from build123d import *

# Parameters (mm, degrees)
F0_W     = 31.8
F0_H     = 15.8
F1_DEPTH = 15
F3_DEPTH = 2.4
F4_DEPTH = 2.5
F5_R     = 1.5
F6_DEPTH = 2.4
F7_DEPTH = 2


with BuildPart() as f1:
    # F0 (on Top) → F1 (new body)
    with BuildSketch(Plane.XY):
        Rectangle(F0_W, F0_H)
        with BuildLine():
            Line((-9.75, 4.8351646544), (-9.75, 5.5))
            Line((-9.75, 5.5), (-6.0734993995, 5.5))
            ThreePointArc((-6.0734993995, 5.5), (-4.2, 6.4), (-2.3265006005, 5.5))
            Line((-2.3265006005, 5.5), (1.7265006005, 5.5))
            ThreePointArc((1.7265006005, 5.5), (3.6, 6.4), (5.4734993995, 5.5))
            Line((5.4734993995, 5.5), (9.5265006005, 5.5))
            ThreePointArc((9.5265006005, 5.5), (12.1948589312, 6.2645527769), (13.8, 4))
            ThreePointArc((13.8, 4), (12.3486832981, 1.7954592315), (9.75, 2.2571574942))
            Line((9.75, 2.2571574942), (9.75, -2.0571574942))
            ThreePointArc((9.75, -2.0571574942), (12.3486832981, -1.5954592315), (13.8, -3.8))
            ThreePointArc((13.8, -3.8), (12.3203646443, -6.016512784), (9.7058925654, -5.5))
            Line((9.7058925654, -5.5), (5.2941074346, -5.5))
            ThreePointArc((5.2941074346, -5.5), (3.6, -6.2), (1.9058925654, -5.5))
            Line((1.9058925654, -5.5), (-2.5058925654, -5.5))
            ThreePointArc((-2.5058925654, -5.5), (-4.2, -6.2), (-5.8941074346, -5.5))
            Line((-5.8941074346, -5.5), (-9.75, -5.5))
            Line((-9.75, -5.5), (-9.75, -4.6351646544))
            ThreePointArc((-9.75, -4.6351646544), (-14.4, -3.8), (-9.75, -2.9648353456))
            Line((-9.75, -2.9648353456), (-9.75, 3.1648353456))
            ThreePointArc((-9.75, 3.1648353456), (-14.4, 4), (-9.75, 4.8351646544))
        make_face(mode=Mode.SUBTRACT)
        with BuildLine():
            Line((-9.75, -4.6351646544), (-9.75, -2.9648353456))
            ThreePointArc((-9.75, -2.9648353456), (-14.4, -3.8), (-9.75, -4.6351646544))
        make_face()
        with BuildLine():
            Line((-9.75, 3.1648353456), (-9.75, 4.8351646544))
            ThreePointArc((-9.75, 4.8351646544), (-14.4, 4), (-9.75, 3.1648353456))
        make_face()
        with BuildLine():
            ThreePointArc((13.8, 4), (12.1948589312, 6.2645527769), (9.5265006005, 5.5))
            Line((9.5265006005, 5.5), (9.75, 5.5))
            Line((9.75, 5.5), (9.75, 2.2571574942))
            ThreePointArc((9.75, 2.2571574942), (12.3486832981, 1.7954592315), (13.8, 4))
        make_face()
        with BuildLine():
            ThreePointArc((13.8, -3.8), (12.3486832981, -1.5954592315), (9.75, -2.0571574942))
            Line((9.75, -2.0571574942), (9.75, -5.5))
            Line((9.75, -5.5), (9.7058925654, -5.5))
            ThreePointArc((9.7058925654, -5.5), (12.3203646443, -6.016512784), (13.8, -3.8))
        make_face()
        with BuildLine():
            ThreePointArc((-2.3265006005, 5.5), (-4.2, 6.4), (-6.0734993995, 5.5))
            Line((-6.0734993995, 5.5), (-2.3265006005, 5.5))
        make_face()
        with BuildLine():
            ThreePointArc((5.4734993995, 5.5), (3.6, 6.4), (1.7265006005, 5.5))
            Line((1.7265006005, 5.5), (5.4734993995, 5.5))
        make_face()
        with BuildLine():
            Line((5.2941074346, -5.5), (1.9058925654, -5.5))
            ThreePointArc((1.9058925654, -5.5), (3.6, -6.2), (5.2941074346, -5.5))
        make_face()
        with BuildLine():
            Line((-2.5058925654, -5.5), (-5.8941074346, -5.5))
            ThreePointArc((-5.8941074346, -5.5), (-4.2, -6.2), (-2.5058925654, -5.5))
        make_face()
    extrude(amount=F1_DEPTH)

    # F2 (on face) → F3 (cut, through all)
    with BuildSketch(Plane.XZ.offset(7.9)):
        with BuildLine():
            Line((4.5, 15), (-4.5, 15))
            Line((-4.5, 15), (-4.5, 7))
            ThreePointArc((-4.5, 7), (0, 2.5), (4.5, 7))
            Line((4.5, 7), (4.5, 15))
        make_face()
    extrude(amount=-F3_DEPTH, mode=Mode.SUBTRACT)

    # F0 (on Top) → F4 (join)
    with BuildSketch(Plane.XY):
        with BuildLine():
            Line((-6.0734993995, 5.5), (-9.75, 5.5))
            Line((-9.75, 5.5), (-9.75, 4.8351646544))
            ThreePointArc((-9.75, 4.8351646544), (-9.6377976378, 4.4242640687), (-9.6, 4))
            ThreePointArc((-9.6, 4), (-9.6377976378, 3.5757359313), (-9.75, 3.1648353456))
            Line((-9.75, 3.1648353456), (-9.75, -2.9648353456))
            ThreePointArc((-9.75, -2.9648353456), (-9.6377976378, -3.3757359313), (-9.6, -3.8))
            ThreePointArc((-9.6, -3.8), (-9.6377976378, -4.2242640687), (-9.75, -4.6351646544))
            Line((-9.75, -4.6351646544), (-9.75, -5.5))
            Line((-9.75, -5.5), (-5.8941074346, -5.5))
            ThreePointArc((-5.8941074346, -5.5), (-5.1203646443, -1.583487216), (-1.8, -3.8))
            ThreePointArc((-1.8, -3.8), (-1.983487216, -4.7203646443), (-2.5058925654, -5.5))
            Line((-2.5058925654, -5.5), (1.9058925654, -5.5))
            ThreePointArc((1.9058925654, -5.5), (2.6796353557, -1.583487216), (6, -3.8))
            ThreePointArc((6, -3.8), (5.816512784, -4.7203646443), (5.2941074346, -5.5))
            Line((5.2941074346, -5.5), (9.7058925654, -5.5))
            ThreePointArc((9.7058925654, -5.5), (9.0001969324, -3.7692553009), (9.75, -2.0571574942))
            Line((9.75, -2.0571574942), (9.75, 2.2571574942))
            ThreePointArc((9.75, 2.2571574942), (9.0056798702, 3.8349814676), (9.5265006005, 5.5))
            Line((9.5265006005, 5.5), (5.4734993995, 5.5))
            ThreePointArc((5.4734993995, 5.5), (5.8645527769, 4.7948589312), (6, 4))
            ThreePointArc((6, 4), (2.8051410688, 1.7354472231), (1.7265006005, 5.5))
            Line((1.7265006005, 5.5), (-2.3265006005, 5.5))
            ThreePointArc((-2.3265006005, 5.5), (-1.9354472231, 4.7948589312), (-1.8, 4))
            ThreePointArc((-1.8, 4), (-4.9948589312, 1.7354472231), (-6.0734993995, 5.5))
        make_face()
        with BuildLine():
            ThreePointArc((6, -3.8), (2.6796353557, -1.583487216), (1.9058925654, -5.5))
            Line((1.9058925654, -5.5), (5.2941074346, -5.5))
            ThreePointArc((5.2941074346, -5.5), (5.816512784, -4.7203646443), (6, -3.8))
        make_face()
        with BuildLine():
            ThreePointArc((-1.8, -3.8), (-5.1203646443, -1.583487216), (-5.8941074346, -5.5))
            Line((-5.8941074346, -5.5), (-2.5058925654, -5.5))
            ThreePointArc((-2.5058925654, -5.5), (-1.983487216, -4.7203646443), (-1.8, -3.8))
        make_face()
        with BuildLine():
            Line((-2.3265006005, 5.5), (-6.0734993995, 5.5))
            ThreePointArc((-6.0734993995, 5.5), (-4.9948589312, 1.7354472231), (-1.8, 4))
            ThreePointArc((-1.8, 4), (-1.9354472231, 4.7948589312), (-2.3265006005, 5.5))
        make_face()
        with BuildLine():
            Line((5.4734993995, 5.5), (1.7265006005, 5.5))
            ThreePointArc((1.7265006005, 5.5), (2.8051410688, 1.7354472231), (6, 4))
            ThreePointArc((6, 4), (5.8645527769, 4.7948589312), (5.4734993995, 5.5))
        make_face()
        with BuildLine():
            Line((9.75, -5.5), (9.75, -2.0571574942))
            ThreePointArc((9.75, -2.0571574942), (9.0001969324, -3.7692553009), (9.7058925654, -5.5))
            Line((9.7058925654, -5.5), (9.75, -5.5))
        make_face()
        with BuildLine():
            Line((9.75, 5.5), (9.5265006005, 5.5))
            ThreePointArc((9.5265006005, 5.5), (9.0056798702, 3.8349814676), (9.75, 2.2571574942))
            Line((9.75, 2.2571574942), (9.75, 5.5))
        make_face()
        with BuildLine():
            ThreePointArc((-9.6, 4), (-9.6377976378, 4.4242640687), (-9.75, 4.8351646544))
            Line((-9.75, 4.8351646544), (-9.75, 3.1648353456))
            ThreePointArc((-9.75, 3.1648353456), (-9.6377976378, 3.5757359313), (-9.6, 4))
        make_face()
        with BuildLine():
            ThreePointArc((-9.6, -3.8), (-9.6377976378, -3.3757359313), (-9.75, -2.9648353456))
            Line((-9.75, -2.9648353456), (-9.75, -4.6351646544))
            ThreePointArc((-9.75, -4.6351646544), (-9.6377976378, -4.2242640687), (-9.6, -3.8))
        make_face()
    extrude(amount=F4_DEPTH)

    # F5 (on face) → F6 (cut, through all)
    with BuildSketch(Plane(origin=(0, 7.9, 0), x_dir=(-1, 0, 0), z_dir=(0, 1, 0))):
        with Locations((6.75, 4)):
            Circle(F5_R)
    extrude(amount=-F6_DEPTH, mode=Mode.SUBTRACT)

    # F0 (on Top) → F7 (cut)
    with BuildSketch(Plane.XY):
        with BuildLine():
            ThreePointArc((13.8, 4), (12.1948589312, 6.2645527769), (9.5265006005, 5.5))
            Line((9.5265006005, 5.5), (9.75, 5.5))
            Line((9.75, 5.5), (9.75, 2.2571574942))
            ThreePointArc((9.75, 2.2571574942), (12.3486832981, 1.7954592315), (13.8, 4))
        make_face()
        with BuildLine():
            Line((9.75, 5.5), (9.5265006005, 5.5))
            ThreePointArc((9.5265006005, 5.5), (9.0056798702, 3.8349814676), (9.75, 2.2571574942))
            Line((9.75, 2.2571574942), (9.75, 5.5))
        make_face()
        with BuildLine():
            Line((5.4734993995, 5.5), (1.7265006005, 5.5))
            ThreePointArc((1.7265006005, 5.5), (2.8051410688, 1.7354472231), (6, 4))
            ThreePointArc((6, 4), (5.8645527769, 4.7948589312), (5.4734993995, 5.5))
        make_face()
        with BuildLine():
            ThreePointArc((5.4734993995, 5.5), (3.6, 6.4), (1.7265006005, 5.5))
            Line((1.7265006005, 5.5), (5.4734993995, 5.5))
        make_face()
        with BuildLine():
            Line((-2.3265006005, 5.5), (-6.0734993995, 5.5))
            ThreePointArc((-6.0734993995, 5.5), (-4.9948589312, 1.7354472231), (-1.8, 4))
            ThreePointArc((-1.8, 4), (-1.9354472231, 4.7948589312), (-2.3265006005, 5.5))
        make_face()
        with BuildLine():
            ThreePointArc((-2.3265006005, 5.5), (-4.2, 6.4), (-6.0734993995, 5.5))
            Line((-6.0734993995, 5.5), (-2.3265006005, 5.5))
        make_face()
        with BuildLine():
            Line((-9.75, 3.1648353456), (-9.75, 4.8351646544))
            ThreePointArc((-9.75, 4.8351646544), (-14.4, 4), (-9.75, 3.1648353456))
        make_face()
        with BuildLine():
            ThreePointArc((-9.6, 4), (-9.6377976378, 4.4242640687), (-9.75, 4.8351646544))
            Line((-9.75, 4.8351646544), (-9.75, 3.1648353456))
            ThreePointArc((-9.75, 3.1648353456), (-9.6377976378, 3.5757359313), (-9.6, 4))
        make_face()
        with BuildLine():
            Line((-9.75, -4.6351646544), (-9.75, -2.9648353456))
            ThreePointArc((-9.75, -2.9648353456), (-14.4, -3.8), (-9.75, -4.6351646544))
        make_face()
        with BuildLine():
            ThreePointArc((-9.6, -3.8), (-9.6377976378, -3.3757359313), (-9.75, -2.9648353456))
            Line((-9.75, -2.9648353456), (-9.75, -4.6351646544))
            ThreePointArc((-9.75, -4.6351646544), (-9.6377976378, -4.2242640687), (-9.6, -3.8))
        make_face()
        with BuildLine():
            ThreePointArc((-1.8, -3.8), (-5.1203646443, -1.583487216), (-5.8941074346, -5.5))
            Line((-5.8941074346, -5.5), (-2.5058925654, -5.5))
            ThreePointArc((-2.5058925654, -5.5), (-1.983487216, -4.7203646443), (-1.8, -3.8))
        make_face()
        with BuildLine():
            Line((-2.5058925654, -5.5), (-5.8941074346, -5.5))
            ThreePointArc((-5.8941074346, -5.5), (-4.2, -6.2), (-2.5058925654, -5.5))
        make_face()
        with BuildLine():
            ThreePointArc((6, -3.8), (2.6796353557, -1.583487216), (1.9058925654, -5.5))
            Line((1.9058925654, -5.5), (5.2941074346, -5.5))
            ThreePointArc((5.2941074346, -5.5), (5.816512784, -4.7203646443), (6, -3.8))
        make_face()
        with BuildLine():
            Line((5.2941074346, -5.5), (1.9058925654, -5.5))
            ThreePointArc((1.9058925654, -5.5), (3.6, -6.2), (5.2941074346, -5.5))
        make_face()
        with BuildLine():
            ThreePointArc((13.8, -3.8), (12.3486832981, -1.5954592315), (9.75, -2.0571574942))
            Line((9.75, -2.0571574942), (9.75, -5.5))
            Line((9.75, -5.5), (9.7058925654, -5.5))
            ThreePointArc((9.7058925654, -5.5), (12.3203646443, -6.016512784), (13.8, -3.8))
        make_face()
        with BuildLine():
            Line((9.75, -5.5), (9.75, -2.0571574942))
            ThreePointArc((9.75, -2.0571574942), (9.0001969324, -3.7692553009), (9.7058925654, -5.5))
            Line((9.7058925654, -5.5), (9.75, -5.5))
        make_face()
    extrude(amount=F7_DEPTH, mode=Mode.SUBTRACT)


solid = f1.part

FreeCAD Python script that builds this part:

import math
import FreeCAD as App
import Part
import Sketcher
from FreeCAD import Vector


def add_polygon(sketch, points):
    """Adds a closed chain of lines whose ends are joined by coincident constraints."""
    first, n = sketch.GeometryCount, len(points)
    for a, b in zip(points, points[1:] + points[:1]):
        sketch.addGeometry(Part.LineSegment(App.Vector(*a, 0), App.Vector(*b, 0)), False)
    for i in range(n):
        sketch.addConstraint(Sketcher.Constraint("Coincident", first + i, 2, first + (i + 1) % n, 1))

doc = App.newDocument("Part")
body = doc.addObject("PartDesign::Body", "Body")

sketch1 = body.newObject("Sketcher::SketchObject", "Sketch")
sketch1.AttachmentSupport = (doc.getObject("XY_Plane"), [""])
sketch1.MapMode = "FlatFace"
add_polygon(sketch1, [(-15.9, 7.9), (-15.9, -7.9), (15.9, -7.9), (15.9, 7.9)])
add_polygon(sketch1, [(-9.75, 5.5), (9.75, 5.5), (9.75, -5.5), (-9.75, -5.5)])
sketch1.addConstraint([
    Sketcher.Constraint("Vertical", 0),
    Sketcher.Constraint("Horizontal", 1),
    Sketcher.Constraint("Vertical", 2),
    Sketcher.Constraint("Horizontal", 3),
    Sketcher.Constraint("Horizontal", 4),
    Sketcher.Constraint("Vertical", 5),
    Sketcher.Constraint("Horizontal", 6),
    Sketcher.Constraint("Vertical", 7),
    Sketcher.Constraint("Symmetric", 0, 2, 2, 2, -1, 1),
    Sketcher.Constraint("Symmetric", 4, 2, 6, 2, -1, 1),
    Sketcher.Constraint("DistanceY", 5, 2, 5, 1, 11.0),
    Sketcher.Constraint("DistanceX", 1, 1, 1, 2, 31.8),
    Sketcher.Constraint("DistanceX", 4, 1, 4, 2, 19.5),
    Sketcher.Constraint("DistanceY", 0, 2, 0, 1, 15.8),
])
pad1 = body.newObject("PartDesign::Pad", "Pad")
pad1.Profile = sketch1
pad1.Length = 15

sketch2 = body.newObject("Sketcher::SketchObject", "Sketch001")
sketch2.AttachmentSupport = (doc.getObject("XZ_Plane"), [""])
sketch2.MapMode = "FlatFace"
sketch2.AttachmentOffset = App.Placement(Vector(0, 0, 7.9), App.Rotation())
sketch2.addGeometry([
    Part.LineSegment(Vector(4.5, 15, 0), Vector(-4.5, 15, 0)),
    Part.LineSegment(Vector(-4.5, 15, 0), Vector(-4.5, 7, 0)),
    Part.ArcOfCircle(Part.Circle(Vector(0, 7, 0), Vector(0, 0, 1), 4.5), math.radians(180), math.radians(360)),
    Part.LineSegment(Vector(4.5, 7, 0), Vector(4.5, 15, 0)),
], False)
sketch2.addConstraint([
    Sketcher.Constraint("Coincident", 0, 2, 1, 1),
    Sketcher.Constraint("Tangent", 1, 2, 2, 1),
    Sketcher.Constraint("Tangent", 2, 2, 3, 1),
    Sketcher.Constraint("Coincident", 3, 2, 0, 1),
    Sketcher.Constraint("Horizontal", 0),
    Sketcher.Constraint("Vertical", 1),
    Sketcher.Constraint("Vertical", 3),
    Sketcher.Constraint("PointOnObject", 2, 3, -2),
    Sketcher.Constraint("Radius", 2, 4.5),
    Sketcher.Constraint("DistanceY", 1, 2, 1, 1, 8.0),
    Sketcher.Constraint("DistanceY", -1, 1, 2, 3, 7.0),
])
pocket1 = body.newObject("PartDesign::Pocket", "Pocket")
pocket1.Profile = sketch2
pocket1.Length = 2.4

sketch3 = body.newObject("Sketcher::SketchObject", "Sketch002")
sketch3.AttachmentSupport = (doc.getObject("XY_Plane"), [""])
sketch3.MapMode = "FlatFace"
add_polygon(sketch3, [(-9.75, 5.5), (-9.75, -5.5), (9.75, -5.5), (9.75, 5.5)])
sketch3.addConstraint([
    Sketcher.Constraint("Vertical", 0),
    Sketcher.Constraint("Horizontal", 1),
    Sketcher.Constraint("Vertical", 2),
    Sketcher.Constraint("Horizontal", 3),
    Sketcher.Constraint("Symmetric", 0, 2, 2, 2, -1, 1),
    Sketcher.Constraint("DistanceY", 0, 2, 0, 1, 11.0),
    Sketcher.Constraint("DistanceX", 1, 1, 1, 2, 19.5),
])
pad2 = body.newObject("PartDesign::Pad", "Pad001")
pad2.Profile = sketch3
pad2.Length = 2.5

sketch4 = body.newObject("Sketcher::SketchObject", "Sketch003")
sketch4.AttachmentSupport = (doc.getObject("XZ_Plane"), [""])
sketch4.MapMode = "FlatFace"
sketch4.AttachmentOffset = App.Placement(Vector(0, 0, -7.9), App.Rotation())
sketch4.addGeometry(Part.Circle(Vector(-6.75, 4, 0), Vector(0, 0, 1), 1.5), False)
sketch4.addConstraint([
    Sketcher.Constraint("Diameter", 0, 3.0),
    Sketcher.Constraint("DistanceY", -1, 1, 0, 3, 4.0),
    Sketcher.Constraint("DistanceX", 0, 3, -1, 1, 6.75),
])
pocket2 = body.newObject("PartDesign::Pocket", "Pocket001")
pocket2.Profile = sketch4
pocket2.Length = 2.4
pocket2.Reversed = True

sketch5 = body.newObject("Sketcher::SketchObject", "Sketch004")
sketch5.AttachmentSupport = (doc.getObject("XY_Plane"), [""])
sketch5.MapMode = "FlatFace"
sketch5.addGeometry([
    Part.Circle(Vector(11.4, 4, 0), Vector(0, 0, 1), 2.4),
    Part.ArcOfCircle(Part.Circle(Vector(3.6, 4, 0), Vector(0, 0, 1), 2.4), math.radians(141.317813), math.radians(360)),
    Part.ArcOfCircle(Part.Circle(Vector(3.6, 4, 0), Vector(0, 0, 1), 2.4), math.radians(0), math.radians(38.682187)),
    Part.ArcOfCircle(Part.Circle(Vector(3.6, 4, 0), Vector(0, 0, 1), 2.4), math.radians(38.682187), math.radians(141.317813)),
    Part.ArcOfCircle(Part.Circle(Vector(-4.2, 4, 0), Vector(0, 0, 1), 2.4), math.radians(141.317813), math.radians(360)),
    Part.ArcOfCircle(Part.Circle(Vector(-4.2, 4, 0), Vector(0, 0, 1), 2.4), math.radians(0), math.radians(38.682187)),
    Part.ArcOfCircle(Part.Circle(Vector(-4.2, 4, 0), Vector(0, 0, 1), 2.4), math.radians(38.682187), math.radians(141.317813)),
    Part.ArcOfCircle(Part.Circle(Vector(-12, 4, 0), Vector(0, 0, 1), 2.4), math.radians(20.364135), math.radians(339.635865)),
    Part.ArcOfCircle(Part.Circle(Vector(-12, 4, 0), Vector(0, 0, 1), 2.4), math.radians(-20.364135), math.radians(0)),
    Part.ArcOfCircle(Part.Circle(Vector(-12, 4, 0), Vector(0, 0, 1), 2.4), math.radians(0), math.radians(20.364135)),
    Part.ArcOfCircle(Part.Circle(Vector(-12, -3.8, 0), Vector(0, 0, 1), 2.4), math.radians(20.364135), math.radians(339.635865)),
    Part.ArcOfCircle(Part.Circle(Vector(-12, -3.8, 0), Vector(0, 0, 1), 2.4), math.radians(-20.364135), math.radians(0)),
    Part.ArcOfCircle(Part.Circle(Vector(-12, -3.8, 0), Vector(0, 0, 1), 2.4), math.radians(0), math.radians(20.364135)),
    Part.ArcOfCircle(Part.Circle(Vector(-4.2, -3.8, 0), Vector(0, 0, 1), 2.4), math.radians(0), math.radians(225.099472)),
    Part.ArcOfCircle(Part.Circle(Vector(-4.2, -3.8, 0), Vector(0, 0, 1), 2.4), math.radians(-134.900528), math.radians(-45.099472)),
    Part.ArcOfCircle(Part.Circle(Vector(-4.2, -3.8, 0), Vector(0, 0, 1), 2.4), math.radians(-45.099472), math.radians(0)),
    Part.ArcOfCircle(Part.Circle(Vector(3.6, -3.8, 0), Vector(0, 0, 1), 2.4), math.radians(0), math.radians(225.099472)),
    Part.ArcOfCircle(Part.Circle(Vector(3.6, -3.8, 0), Vector(0, 0, 1), 2.4), math.radians(-134.900528), math.radians(-45.099472)),
    Part.ArcOfCircle(Part.Circle(Vector(3.6, -3.8, 0), Vector(0, 0, 1), 2.4), math.radians(-45.099472), math.radians(0)),
    Part.ArcOfCircle(Part.Circle(Vector(11.4, -3.8, 0), Vector(0, 0, 1), 2.4), math.radians(0), math.radians(133.432537)),
    Part.ArcOfCircle(Part.Circle(Vector(11.4, -3.8, 0), Vector(0, 0, 1), 2.4), math.radians(133.432537), math.radians(225.099472)),
    Part.ArcOfCircle(Part.Circle(Vector(11.4, -3.8, 0), Vector(0, 0, 1), 2.4), math.radians(-134.900528), math.radians(0)),
], False)
sketch5.addConstraint([
    Sketcher.Constraint("Tangent", 1, 2, 2, 1),
    Sketcher.Constraint("Tangent", 2, 2, 3, 1),
    Sketcher.Constraint("Tangent", 3, 2, 1, 1),
    Sketcher.Constraint("Tangent", 4, 2, 5, 1),
    Sketcher.Constraint("Tangent", 5, 2, 6, 1),
    Sketcher.Constraint("Tangent", 6, 2, 4, 1),
    Sketcher.Constraint("Tangent", 7, 2, 8, 1),
    Sketcher.Constraint("Tangent", 8, 2, 9, 1),
    Sketcher.Constraint("Tangent", 9, 2, 7, 1),
    Sketcher.Constraint("Tangent", 10, 2, 11, 1),
    Sketcher.Constraint("Tangent", 11, 2, 12, 1),
    Sketcher.Constraint("Tangent", 12, 2, 10, 1),
    Sketcher.Constraint("Tangent", 13, 2, 14, 1),
    Sketcher.Constraint("Tangent", 14, 2, 15, 1),
    Sketcher.Constraint("Tangent", 15, 2, 13, 1),
    Sketcher.Constraint("Tangent", 16, 2, 17, 1),
    Sketcher.Constraint("Tangent", 17, 2, 18, 1),
    Sketcher.Constraint("Tangent", 18, 2, 16, 1),
    Sketcher.Constraint("Tangent", 19, 2, 20, 1),
    Sketcher.Constraint("Tangent", 20, 2, 21, 1),
    Sketcher.Constraint("Tangent", 21, 2, 19, 1),
    Sketcher.Constraint("Equal", 0, 1),
    Sketcher.Constraint("Equal", 3, 4),
    Sketcher.Constraint("Equal", 6, 7),
    Sketcher.Constraint("Equal", 9, 10),
    Sketcher.Constraint("Equal", 12, 13),
    Sketcher.Constraint("Equal", 15, 16),
    Sketcher.Constraint("Equal", 18, 19),
    Sketcher.Constraint("Horizontal", 0, 3, 1, 3),
    Sketcher.Constraint("Horizontal", 3, 3, 4, 3),
    Sketcher.Constraint("Horizontal", 6, 3, 7, 3),
    Sketcher.Constraint("Horizontal", 12, 3, 13, 3),
    Sketcher.Constraint("Horizontal", 15, 3, 16, 3),
    Sketcher.Constraint("Horizontal", 18, 3, 19, 3),
    Sketcher.Constraint("Horizontal", 9, 3, 1, 2),
    Sketcher.Constraint("Horizontal", 2, 2, 3, 2),
    Sketcher.Constraint("Horizontal", 1, 2, 4, 2),
    Sketcher.Constraint("Horizontal", 3, 2, 5, 2),
    Sketcher.Constraint("Horizontal", 5, 2, 6, 2),
    Sketcher.Constraint("Horizontal", 4, 2, 8, 2),
    Sketcher.Constraint("Horizontal", 21, 3, 11, 2),
    Sketcher.Constraint("Horizontal", 13, 2, 14, 2),
    Sketcher.Constraint("Horizontal", 11, 2, 15, 2),
    Sketcher.Constraint("Horizontal", 14, 2, 16, 2),
    Sketcher.Constraint("Horizontal", 16, 2, 17, 2),
    Sketcher.Constraint("Horizontal", 15, 2, 18, 2),
    Sketcher.Constraint("Horizontal", 17, 2, 20, 2),
    Sketcher.Constraint("Horizontal", 18, 2, 21, 2),
    Sketcher.Constraint("Vertical", 9, 3, 10, 3),
    Sketcher.Constraint("Vertical", 6, 3, 13, 3),
    Sketcher.Constraint("Vertical", 3, 3, 16, 3),
    Sketcher.Constraint("Vertical", 0, 3, 19, 3),
    Sketcher.Constraint("Vertical", 7, 2, 9, 2),
    Sketcher.Constraint("Vertical", 9, 2, 10, 2),
    Sketcher.Constraint("Vertical", 10, 2, 12, 2),
    Sketcher.Constraint("Diameter", 0, 4.8),
    Sketcher.Constraint("DistanceY", -1, 1, 0, 3, 4.0),
    Sketcher.Constraint("DistanceX", 7, 3, -1, 1, 12.0),
    Sketcher.Constraint("DistanceX", -1, 1, 1, 2, 6.0),
    Sketcher.Constraint("DistanceX", -1, 1, 0, 3, 11.4),
    Sketcher.Constraint("DistanceX", 4, 3, -1, 1, 4.2),
    Sketcher.Constraint("DistanceY", 10, 3, -1, 1, 3.8),
    Sketcher.Constraint("DistanceY", -1, 1, 2, 2, 5.5),
    Sketcher.Constraint("DistanceY", 13, 2, -1, 1, 5.5),
    Sketcher.Constraint("DistanceX", 7, 2, -1, 1, 9.75),
    Sketcher.Constraint("DistanceX", -1, 1, 19, 2, 9.75),
])
pocket3 = body.newObject("PartDesign::Pocket", "Pocket002")
pocket3.Profile = sketch5
pocket3.Length = 2
pocket3.Reversed = True

doc.recompute()
